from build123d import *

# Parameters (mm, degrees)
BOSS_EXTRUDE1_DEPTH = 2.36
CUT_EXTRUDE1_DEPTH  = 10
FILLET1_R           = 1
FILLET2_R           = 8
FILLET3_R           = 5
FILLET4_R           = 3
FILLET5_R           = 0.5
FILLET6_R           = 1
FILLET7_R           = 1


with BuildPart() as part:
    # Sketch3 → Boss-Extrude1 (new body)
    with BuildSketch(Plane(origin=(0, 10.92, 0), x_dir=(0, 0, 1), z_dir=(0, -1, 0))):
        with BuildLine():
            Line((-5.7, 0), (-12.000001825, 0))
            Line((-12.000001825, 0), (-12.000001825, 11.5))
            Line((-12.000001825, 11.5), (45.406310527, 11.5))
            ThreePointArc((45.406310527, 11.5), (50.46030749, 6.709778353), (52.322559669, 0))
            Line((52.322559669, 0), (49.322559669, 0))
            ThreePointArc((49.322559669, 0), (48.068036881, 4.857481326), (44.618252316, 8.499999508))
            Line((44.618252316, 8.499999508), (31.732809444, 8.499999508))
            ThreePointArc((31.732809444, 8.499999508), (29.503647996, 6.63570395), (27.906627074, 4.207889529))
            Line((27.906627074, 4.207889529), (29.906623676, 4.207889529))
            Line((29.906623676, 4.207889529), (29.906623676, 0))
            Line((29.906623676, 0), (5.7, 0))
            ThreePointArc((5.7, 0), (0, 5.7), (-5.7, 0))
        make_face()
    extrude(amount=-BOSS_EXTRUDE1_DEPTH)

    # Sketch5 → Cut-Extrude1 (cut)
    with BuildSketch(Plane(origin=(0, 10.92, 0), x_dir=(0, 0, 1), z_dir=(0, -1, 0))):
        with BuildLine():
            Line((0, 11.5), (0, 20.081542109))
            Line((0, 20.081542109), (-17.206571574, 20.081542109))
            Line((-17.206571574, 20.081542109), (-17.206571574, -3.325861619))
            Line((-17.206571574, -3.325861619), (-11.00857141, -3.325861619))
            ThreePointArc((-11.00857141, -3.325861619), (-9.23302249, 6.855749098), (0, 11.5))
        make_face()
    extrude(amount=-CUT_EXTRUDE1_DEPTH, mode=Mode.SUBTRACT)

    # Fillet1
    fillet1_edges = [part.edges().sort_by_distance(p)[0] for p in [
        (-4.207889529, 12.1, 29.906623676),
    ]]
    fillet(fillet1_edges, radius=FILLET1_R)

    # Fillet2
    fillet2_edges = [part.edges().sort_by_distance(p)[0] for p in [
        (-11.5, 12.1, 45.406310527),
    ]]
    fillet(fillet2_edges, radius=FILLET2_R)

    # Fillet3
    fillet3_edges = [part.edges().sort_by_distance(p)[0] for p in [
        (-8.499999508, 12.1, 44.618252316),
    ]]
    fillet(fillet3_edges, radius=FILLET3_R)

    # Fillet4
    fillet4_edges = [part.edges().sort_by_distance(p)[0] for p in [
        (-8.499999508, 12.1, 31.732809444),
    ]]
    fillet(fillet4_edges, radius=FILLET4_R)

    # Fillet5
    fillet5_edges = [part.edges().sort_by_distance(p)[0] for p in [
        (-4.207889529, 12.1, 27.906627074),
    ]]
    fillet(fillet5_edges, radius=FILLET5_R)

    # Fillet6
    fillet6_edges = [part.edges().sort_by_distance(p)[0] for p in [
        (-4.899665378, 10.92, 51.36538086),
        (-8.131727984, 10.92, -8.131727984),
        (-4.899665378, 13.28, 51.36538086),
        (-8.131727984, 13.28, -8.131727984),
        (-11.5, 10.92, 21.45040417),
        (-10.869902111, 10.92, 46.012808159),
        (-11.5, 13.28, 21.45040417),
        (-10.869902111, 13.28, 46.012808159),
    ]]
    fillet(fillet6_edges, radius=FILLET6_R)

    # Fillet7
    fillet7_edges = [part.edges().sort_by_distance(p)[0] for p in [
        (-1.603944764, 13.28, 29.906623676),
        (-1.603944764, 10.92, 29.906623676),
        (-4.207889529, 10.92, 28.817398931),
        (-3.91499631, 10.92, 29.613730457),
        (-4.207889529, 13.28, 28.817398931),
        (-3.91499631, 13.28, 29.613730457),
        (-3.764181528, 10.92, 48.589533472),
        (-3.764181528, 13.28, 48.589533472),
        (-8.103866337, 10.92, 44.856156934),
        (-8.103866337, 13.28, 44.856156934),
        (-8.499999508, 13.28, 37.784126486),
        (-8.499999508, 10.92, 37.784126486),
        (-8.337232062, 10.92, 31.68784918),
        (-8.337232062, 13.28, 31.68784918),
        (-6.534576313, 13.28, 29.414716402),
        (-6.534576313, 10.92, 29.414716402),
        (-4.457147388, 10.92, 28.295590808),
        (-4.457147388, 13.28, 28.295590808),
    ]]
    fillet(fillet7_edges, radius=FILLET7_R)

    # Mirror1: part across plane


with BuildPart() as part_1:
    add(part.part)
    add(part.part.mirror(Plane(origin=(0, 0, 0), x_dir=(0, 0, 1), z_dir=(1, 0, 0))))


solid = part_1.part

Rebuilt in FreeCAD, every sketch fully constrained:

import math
import FreeCAD as App
import Part
import Sketcher


def edges_at(feature, points):
    """Names of the edges that pass closest to the given points."""
    edges = feature.Shape.Edges
    near = lambda p: min(range(len(edges)), key=lambda i: edges[i].distToShape(Part.Vertex(*p))[0])
    return sorted({f"Edge{near(p) + 1}" for p in points})

doc = App.newDocument("Part")
body = doc.addObject("PartDesign::Body", "Body")

# Sketch on XZ plane
sketch1 = body.newObject("Sketcher::SketchObject", "Sketch")
sketch1.AttachmentSupport = (doc.getObject("XZ_Plane"), [""])
sketch1.MapMode = "FlatFace"
sketch1.AttachmentOffset = App.Placement(App.Vector(0, 0, -10.92), App.Rotation())
sketch1.addGeometry([
    Part.LineSegment(App.Vector(0, -12.000002, 0), App.Vector(0, -5.7, 0)),  # 0
    Part.ArcOfCircle(Part.Circle(App.Vector(0, 0, 0), App.Vector(0, 0, 1), 5.7), math.radians(90), math.radians(270)),  # 1
    Part.LineSegment(App.Vector(0, 5.7, 0), App.Vector(0, 29.906624, 0)),  # 2
    Part.LineSegment(App.Vector(0, 29.906624, 0), App.Vector(-4.20789, 29.906624, 0)),  # 3
    Part.LineSegment(App.Vector(-4.20789, 29.906624, 0), App.Vector(-4.20789, 27.906627, 0)),  # 4
    Part.ArcOfCircle(Part.Circle(App.Vector(-0.000068, 36.947329, 0), App.Vector(0, 0, 1), 9.971964), math.radians(-148.471808), math.radians(-114.958723)),  # 5
    Part.LineSegment(App.Vector(-8.5, 31.732809, 0), App.Vector(-8.5, 44.618252, 0)),  # 6
    Part.ArcOfCircle(Part.Circle(App.Vector(0, 39.291274, 0), App.Vector(0, 0, 1), 10.031285), math.radians(90), math.radians(147.924491)),  # 7
    Part.LineSegment(App.Vector(0, 49.32256, 0), App.Vector(0, 52.32256, 0)),  # 8
    Part.ArcOfCircle(Part.Circle(App.Vector(0, 39.303617, 0), App.Vector(0, 0, 1), 13.018943), math.radians(90), math.radians(152.046493)),  # 9
    Part.LineSegment(App.Vector(-11.5, 45.406311, 0), App.Vector(-11.5, -12.000002, 0)),  # 10
    Part.LineSegment(App.Vector(-11.5, -12.000002, 0), App.Vector(0, -12.000002, 0)),  # 11
], False)
sketch1.addConstraint([
    Sketcher.Constraint("Coincident", 0, 2, 1, 2),
    Sketcher.Constraint("Coincident", 1, 1, 2, 1),
    Sketcher.Constraint("Coincident", 2, 2, 3, 1),
    Sketcher.Constraint("Coincident", 3, 2, 4, 1),
    Sketcher.Constraint("Coincident", 4, 2, 5, 2),
    Sketcher.Constraint("Coincident", 5, 1, 6, 1),
    Sketcher.Constraint("Coincident", 6, 2, 7, 2),
    Sketcher.Constraint("Coincident", 7, 1, 8, 1),
    Sketcher.Constraint("Coincident", 8, 2, 9, 1),
    Sketcher.Constraint("Coincident", 9, 2, 10, 1),
    Sketcher.Constraint("Coincident", 10, 2, 11, 1),
    Sketcher.Constraint("Coincident", 11, 2, 0, 1),
    Sketcher.Constraint("Vertical", 0),
    Sketcher.Constraint("Vertical", 2),
    Sketcher.Constraint("Horizontal", 3),
    Sketcher.Constraint("Vertical", 4),
    Sketcher.Constraint("Vertical", 6),
    Sketcher.Constraint("Vertical", 8),
    Sketcher.Constraint("Vertical", 10),
    Sketcher.Constraint("Horizontal", 11),
    Sketcher.Constraint("Coincident", 1, 3, -1, 1),
    Sketcher.Constraint("PointOnObject", 7, 3, -2),
    Sketcher.Constraint("PointOnObject", 9, 3, -2),
    Sketcher.Constraint("PointOnObject", 0, 2, -2),
    Sketcher.Constraint("PointOnObject", 1, 1, -2),
    Sketcher.Constraint("PointOnObject", 7, 1, -2),
    Sketcher.Constraint("Radius", 1, 5.7),
    Sketcher.Constraint("DistanceY", 8, 1, 8, 2, 3.0),
    Sketcher.Constraint("DistanceX", 11, 1, 11, 2, 11.5),
    Sketcher.Constraint("DistanceY", 0, 1, 0, 2, 6.300002),
    Sketcher.Constraint("DistanceX", 9, 2, 6, 2, 3.0),
    Sketcher.Constraint("Radius", 5, 9.971964),
    Sketcher.Constraint("Radius", 7, 10.031285),
    Sketcher.Constraint("Radius", 9, 13.018943),
    Sketcher.Constraint("DistanceX", 3, 2, 3, 1, 4.20789),
    Sketcher.Constraint("DistanceY", 4, 2, 5, 3, 9.040702),
    Sketcher.Constraint("DistanceY", 2, 1, 2, 2, 24.206624),
    Sketcher.Constraint("DistanceY", 4, 2, 4, 1, 1.999997),
    Sketcher.Constraint("DistanceY", 6, 1, 6, 2, 12.885443),
])
pad1 = body.newObject("PartDesign::Pad", "Pad")
pad1.Profile = sketch1
pad1.Length = 2.36
pad1.Reversed = True

# Sketch on XZ plane
sketch2 = body.newObject("Sketcher::SketchObject", "Sketch001")
sketch2.AttachmentSupport = (doc.getObject("XZ_Plane"), [""])
sketch2.MapMode = "FlatFace"
sketch2.AttachmentOffset = App.Placement(App.Vector(0, 0, -10.92), App.Rotation())
sketch2.addGeometry([
    Part.LineSegment(App.Vector(-11.5, 0, 0), App.Vector(-20.081542, 0, 0)),  # 0
    Part.LineSegment(App.Vector(-20.081542, 0, 0), App.Vector(-20.081542, -17.206572, 0)),  # 1
    Part.LineSegment(App.Vector(-20.081542, -17.206572, 0), App.Vector(3.325862, -17.206572, 0)),  # 2
    Part.LineSegment(App.Vector(3.325862, -17.206572, 0), App.Vector(3.325862, -11.008571, 0)),  # 3
    Part.ArcOfCircle(Part.Circle(App.Vector(0, 0, 0), App.Vector(0, 0, 1), 11.5), math.radians(180), math.radians(286.810388)),  # 4
], False)
sketch2.addConstraint([
    Sketcher.Constraint("Coincident", 0, 2, 1, 1),
    Sketcher.Constraint("Coincident", 1, 2, 2, 1),
    Sketcher.Constraint("Coincident", 2, 2, 3, 1),
    Sketcher.Constraint("Coincident", 3, 2, 4, 2),
    Sketcher.Constraint("Coincident", 4, 1, 0, 1),
    Sketcher.Constraint("Horizontal", 0),
    Sketcher.Constraint("Vertical", 1),
    Sketcher.Constraint("Horizontal", 2),
    Sketcher.Constraint("Vertical", 3),
    Sketcher.Constraint("Coincident", 4, 3, -1, 1),
    Sketcher.Constraint("PointOnObject", 0, 2, -1),
    Sketcher.Constraint("Radius", 4, 11.5),
    Sketcher.Constraint("DistanceY", 3, 1, 3, 2, 6.198),
    Sketcher.Constraint("DistanceY", 1, 2, 1, 1, 17.206572),
    Sketcher.Constraint("DistanceX", 0, 2, 0, 1, 8.581542),
])
pocket1 = body.newObject("PartDesign::Pocket", "Pocket")
pocket1.Profile = sketch2
pocket1.Length = 10
doc.recompute()

fillet = body.newObject("PartDesign::Fillet", "Fillet")
fillet.Base = (pocket1, edges_at(pocket1, [(-4.208, 12.1, 29.907)]))
fillet.Radius = 1
doc.recompute()

fillet2 = body.newObject("PartDesign::Fillet", "Fillet001")
fillet2.Base = (fillet, edges_at(fillet, [(-11.5, 12.1, 45.406)]))
fillet2.Radius = 8
doc.recompute()

fillet3 = body.newObject("PartDesign::Fillet", "Fillet002")
fillet3.Base = (fillet2, edges_at(fillet2, [(-8.5, 12.1, 44.618)]))
fillet3.Radius = 5
doc.recompute()

fillet4 = body.newObject("PartDesign::Fillet", "Fillet003")
fillet4.Base = (fillet3, edges_at(fillet3, [(-8.5, 12.1, 31.733)]))
fillet4.Radius = 3
doc.recompute()

fillet5 = body.newObject("PartDesign::Fillet", "Fillet004")
fillet5.Base = (fillet4, edges_at(fillet4, [(-4.208, 12.1, 27.907)]))
fillet5.Radius = 0.5
doc.recompute()

fillet6 = body.newObject("PartDesign::Fillet", "Fillet005")
fillet6.Base = (fillet5, edges_at(fillet5, [
    (-4.9, 10.92, 51.365),
    (-8.132, 10.92, -8.132),
    (-4.9, 13.28, 51.365),
    (-8.132, 13.28, -8.132),
    (-11.5, 10.92, 21.45),
    (-10.87, 10.92, 46.013),
    (-11.5, 13.28, 21.45),
    (-10.87, 13.28, 46.013),
]))
fillet6.Radius = 1
doc.recompute()

fillet7 = body.newObject("PartDesign::Fillet", "Fillet006")
fillet7.Base = (fillet6, edges_at(fillet6, [
    (-1.604, 13.28, 29.907),
    (-1.604, 10.92, 29.907),
    (-4.208, 10.92, 28.817),
    (-3.915, 10.92, 29.614),
    (-4.208, 13.28, 28.817),
    (-3.915, 13.28, 29.614),
    (-3.764, 10.92, 48.59),
    (-3.764, 13.28, 48.59),
    (-8.104, 10.92, 44.856),
    (-8.104, 13.28, 44.856),
    (-8.5, 13.28, 37.784),
    (-8.5, 10.92, 37.784),
    (-8.337, 10.92, 31.688),
    (-8.337, 13.28, 31.688),
    (-6.535, 13.28, 29.415),
    (-6.535, 10.92, 29.415),
    (-4.457, 10.92, 28.296),
    (-4.457, 13.28, 28.296),
]))
fillet7.Radius = 1
body2 = doc.addObject("PartDesign::Body", "Body001")
doc.recompute()

body2.BaseFeature = body
doc.recompute()

mirroring = doc.addObject("Part::Mirroring", "Mirroring")
mirroring.Source = body
mirroring.Base = App.Vector(0, 0, 0)
mirroring.Normal = App.Vector(1, 0, 0)
body3 = doc.addObject("PartDesign::Body", "Body002")
body3.BaseFeature = mirroring
boolean = body2.newObject("PartDesign::Boolean", "Boolean")
boolean.Type = "Fuse"
boolean.addObjects([body3])
doc.recompute()
mirroring.Visibility = False

doc.recompute()
